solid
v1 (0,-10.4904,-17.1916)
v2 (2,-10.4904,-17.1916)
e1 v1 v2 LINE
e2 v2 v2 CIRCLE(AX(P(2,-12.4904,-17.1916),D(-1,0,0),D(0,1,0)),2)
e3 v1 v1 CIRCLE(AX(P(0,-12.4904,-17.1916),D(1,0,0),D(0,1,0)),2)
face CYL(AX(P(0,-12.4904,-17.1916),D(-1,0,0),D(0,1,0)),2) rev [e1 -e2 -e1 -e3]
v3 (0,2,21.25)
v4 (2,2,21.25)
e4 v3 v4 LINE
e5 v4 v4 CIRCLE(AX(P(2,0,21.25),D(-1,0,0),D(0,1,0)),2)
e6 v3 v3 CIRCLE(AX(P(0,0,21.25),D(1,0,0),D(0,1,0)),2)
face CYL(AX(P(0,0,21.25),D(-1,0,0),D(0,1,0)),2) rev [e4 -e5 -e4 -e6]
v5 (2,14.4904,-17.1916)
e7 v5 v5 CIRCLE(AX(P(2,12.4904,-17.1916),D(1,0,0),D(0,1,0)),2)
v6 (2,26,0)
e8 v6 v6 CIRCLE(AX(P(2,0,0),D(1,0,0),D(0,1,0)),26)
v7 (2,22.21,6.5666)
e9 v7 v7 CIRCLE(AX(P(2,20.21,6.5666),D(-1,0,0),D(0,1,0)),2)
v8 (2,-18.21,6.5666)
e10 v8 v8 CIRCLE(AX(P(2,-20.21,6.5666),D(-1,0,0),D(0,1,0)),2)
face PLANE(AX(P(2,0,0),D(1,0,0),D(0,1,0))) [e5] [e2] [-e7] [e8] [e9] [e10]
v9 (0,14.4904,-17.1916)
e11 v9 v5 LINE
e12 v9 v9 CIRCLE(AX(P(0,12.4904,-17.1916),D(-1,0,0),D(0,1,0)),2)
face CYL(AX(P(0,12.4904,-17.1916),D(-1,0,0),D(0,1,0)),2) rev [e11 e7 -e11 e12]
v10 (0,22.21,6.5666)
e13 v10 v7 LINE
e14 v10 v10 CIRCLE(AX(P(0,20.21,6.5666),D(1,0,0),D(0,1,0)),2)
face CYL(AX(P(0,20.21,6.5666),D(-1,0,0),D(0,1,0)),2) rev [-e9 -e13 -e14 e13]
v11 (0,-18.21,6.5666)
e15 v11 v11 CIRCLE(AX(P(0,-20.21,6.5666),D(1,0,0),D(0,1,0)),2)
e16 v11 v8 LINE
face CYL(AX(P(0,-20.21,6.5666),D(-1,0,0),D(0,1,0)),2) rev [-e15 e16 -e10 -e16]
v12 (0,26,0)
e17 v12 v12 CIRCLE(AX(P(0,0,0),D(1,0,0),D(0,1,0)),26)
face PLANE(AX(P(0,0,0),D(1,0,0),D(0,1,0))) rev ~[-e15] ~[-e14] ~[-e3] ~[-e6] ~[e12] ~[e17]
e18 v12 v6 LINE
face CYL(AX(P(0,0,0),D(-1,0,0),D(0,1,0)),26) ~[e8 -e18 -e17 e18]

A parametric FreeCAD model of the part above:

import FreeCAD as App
import Part
import Sketcher

doc = App.newDocument("Part")
params = doc.addObject("Spreadsheet::Sheet", "Params")
for row, (alias, value) in enumerate([
    ("sketch1_diameter", "52 mm"),
    ("sketch1_diameter2", "4 mm"),
    ("pad1_length", "2 mm"),
], start=1):
    params.set(f"A{row}", alias)
    params.set(f"B{row}", "=" + value)
    params.setAlias(f"B{row}", alias)

body = doc.addObject("PartDesign::Body", "Body")

# Sketch on YZ plane
sketch1 = body.newObject("Sketcher::SketchObject", "Sketch")
sketch1.AttachmentSupport = (doc.getObject("YZ_Plane"), [""])
sketch1.MapMode = "FlatFace"
sketch1.addGeometry(Part.Circle(App.Vector(0, 0, 0), App.Vector(0, 0, 1), 26), False)
sketch1.addGeometry(Part.Circle(App.Vector(12.4904, -17.1916, 0), App.Vector(0, 0, 1), 2), False)
sketch1.addGeometry(Part.Circle(App.Vector(-12.4904, -17.1916, 0), App.Vector(0, 0, 1), 2), False)
sketch1.addGeometry(Part.Circle(App.Vector(-20.21, 6.5666, 0), App.Vector(0, 0, 1), 2), False)
sketch1.addGeometry(Part.Circle(App.Vector(0, 21.25, 0), App.Vector(0, 0, 1), 2), False)
sketch1.addGeometry(Part.Circle(App.Vector(20.21, 6.5666, 0), App.Vector(0, 0, 1), 2), False)
sketch1.addConstraint(Sketcher.Constraint("Coincident", 0, 3, -1, 1))
sketch1.addConstraint(Sketcher.Constraint("Equal", 1, 2))
sketch1.addConstraint(Sketcher.Constraint("Equal", 2, 3))
sketch1.addConstraint(Sketcher.Constraint("Equal", 3, 4))
sketch1.addConstraint(Sketcher.Constraint("Equal", 4, 5))
sketch1.addConstraint(Sketcher.Constraint("Symmetric", 1, 3, 2, 3, -2))
sketch1.addConstraint(Sketcher.Constraint("Symmetric", 3, 3, 5, 3, -2))
sketch1.addConstraint(Sketcher.Constraint("PointOnObject", 4, 3, -2))
sketch1.addConstraint(Sketcher.Constraint("Diameter", 0, 52.0))
sketch1.addConstraint(Sketcher.Constraint("Diameter", 1, 4.0))
sketch1.addConstraint(Sketcher.Constraint("DistanceX", 3, 3, -1, 1, 20.21))
sketch1.addConstraint(Sketcher.Constraint("DistanceY", -1, 1, 4, 3, 21.25))
sketch1.addConstraint(Sketcher.Constraint("DistanceX", -1, 1, 1, 3, 12.4904))
sketch1.addConstraint(Sketcher.Constraint("DistanceY", 1, 3, -1, 1, 17.1916))
sketch1.addConstraint(Sketcher.Constraint("DistanceY", -1, 1, 3, 3, 6.5666))
sketch1.setExpression("Constraints[8]", "Params.sketch1_diameter")
sketch1.setExpression("Constraints[9]", "Params.sketch1_diameter2")
pad1 = body.newObject("PartDesign::Pad", "Pad")
pad1.Profile = sketch1
pad1.setExpression("Length", "Params.pad1_length")

doc.recompute()
